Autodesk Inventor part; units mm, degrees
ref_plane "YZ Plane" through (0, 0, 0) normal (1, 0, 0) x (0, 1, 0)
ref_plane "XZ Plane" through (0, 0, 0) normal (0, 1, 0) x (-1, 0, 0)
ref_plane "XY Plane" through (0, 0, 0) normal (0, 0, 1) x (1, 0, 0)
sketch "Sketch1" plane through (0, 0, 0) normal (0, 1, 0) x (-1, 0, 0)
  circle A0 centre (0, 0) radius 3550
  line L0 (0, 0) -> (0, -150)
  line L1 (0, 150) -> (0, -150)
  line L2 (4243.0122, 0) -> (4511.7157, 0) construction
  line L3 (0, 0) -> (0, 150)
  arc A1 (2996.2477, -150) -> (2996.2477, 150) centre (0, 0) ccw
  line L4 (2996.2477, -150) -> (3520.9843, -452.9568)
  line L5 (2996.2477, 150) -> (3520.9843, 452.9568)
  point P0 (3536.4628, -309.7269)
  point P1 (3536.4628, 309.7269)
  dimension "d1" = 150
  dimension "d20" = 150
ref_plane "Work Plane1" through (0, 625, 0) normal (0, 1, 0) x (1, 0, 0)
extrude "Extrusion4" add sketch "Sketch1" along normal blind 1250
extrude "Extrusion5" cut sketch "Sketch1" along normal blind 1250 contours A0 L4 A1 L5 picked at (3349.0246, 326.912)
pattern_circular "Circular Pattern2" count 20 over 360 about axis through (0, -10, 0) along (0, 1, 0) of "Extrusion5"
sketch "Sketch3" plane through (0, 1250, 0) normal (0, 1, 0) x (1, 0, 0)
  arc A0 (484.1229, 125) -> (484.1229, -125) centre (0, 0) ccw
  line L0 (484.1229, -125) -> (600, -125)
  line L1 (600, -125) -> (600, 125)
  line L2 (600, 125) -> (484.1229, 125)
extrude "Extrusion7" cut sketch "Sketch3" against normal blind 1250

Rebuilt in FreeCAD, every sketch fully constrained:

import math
import FreeCAD as App
import Part
import Sketcher

V = App.Vector
Q = App.Units.Quantity

doc = App.newDocument("Part")
params = doc.addObject("Spreadsheet::Sheet", "Params")
for row, (alias, value) in enumerate([
    ("sketch1_diameter", "7100 mm"),
    ("pad1_length", "1250 mm"),
    ("sketch2_radius", "3550 mm"),
    ("sketch2_radius2", "3000 mm"),
    ("pocket1_length", "1250 mm"),
    ("sketch3_radius", "500 mm"),
    ("sketch3_height", "250 mm"),
    ("pocket2_length", "1250 mm"),
], start=1):
    params.set(f"A{row}", alias)
    params.set(f"B{row}", "=" + value)
    params.setAlias(f"B{row}", alias)

body = doc.addObject("PartDesign::Body", "Body")

sketch1 = body.newObject("Sketcher::SketchObject", "Sketch")
sketch1.AttachmentSupport = (doc.getObject("XZ_Plane"), [""])
sketch1.MapMode = "FlatFace"
sketch1.addGeometry(Part.Circle(V(0, 0, 0), V(0, 0, 1), 3550), False)
sketch1.addConstraint([
    Sketcher.Constraint("Coincident", 0, 3, -1, 1),
    Sketcher.Constraint("Diameter", 0, 7100.0),
])
sketch1.setExpression("Constraints[1]", "Params.sketch1_diameter")
pad1 = body.newObject("PartDesign::Pad", "Pad")
pad1.Profile = sketch1
pad1.setExpression("Length", "Params.pad1_length")
pad1.Reversed = True

sketch2 = body.newObject("Sketcher::SketchObject", "Sketch001")
sketch2.AttachmentSupport = (doc.getObject("XZ_Plane"), [""])
sketch2.MapMode = "FlatFace"
sketch2.addGeometry([
    Part.ArcOfCircle(Part.Circle(V(0, 0, 0), V(0, 0, 1), 3550), math.radians(172.67), math.radians(187.33)),
    Part.LineSegment(V(-3521, 453, 0), V(-2996, 150, 0)),
    Part.ArcOfCircle(Part.Circle(V(0, 0, 0), V(0, 0, 1), 3000), math.radians(177.13), math.radians(182.87)),
    Part.LineSegment(V(-2996, -150, 0), V(-3521, -453, 0)),
], False)
sketch2.addConstraint([
    Sketcher.Constraint("Coincident", 0, 1, 1, 1),
    Sketcher.Constraint("Coincident", 1, 2, 2, 1),
    Sketcher.Constraint("Coincident", 2, 2, 3, 1),
    Sketcher.Constraint("Coincident", 3, 2, 0, 2),
    Sketcher.Constraint("Coincident", 0, 3, -1, 1),
    Sketcher.Constraint("Coincident", 2, 3, -1, 1),
    Sketcher.Constraint("Equal", 1, 3),
    Sketcher.Constraint("Angle", 3, Q("-150 deg")),
    Sketcher.Constraint("DistanceY", -1, 1, 1, 2, 150.0),
    Sketcher.Constraint("Radius", 0, 3550.0),
    Sketcher.Constraint("Radius", 2, 3000.0),
    Sketcher.Constraint("Angle", 1, Q("-30 deg")),
])
sketch2.setExpression("Constraints[9]", "Params.sketch2_radius")
sketch2.setExpression("Constraints[10]", "Params.sketch2_radius2")
pocket1 = body.newObject("PartDesign::Pocket", "Pocket")
pocket1.Profile = sketch2
pocket1.setExpression("Length", "Params.pocket1_length")
doc.recompute()

polarpattern = body.newObject("PartDesign::PolarPattern", "PolarPattern")
polarpattern.Originals = [pocket1]
polarpattern.Axis = (doc.getObject("Y_Axis"), [""])
polarpattern.Angle = 360
polarpattern.Occurrences = 20
body.Tip = polarpattern

sketch3 = body.newObject("Sketcher::SketchObject", "Sketch002")
sketch3.AttachmentSupport = (doc.getObject("XZ_Plane"), [""])
sketch3.MapMode = "FlatFace"
sketch3.AttachmentOffset = App.Placement(V(0, 0, -1250), App.Rotation())
sketch3.addGeometry([
    Part.LineSegment(V(600, -125, 0), V(484, -125, 0)),
    Part.ArcOfCircle(Part.Circle(V(0, 0, 0), V(0, 0, 1), 500), math.radians(14), math.radians(346)),
    Part.LineSegment(V(484, 125, 0), V(600, 125, 0)),
    Part.LineSegment(V(600, 125, 0), V(600, -125, 0)),
], False)
sketch3.addConstraint([
    Sketcher.Constraint("Coincident", 0, 2, 1, 2),
    Sketcher.Constraint("Coincident", 1, 1, 2, 1),
    Sketcher.Constraint("Coincident", 2, 2, 3, 1),
    Sketcher.Constraint("Coincident", 3, 2, 0, 1),
    Sketcher.Constraint("Horizontal", 0),
    Sketcher.Constraint("Horizontal", 2),
    Sketcher.Constraint("Vertical", 3),
    Sketcher.Constraint("Coincident", 1, 3, -1, 1),
    Sketcher.Constraint("Equal", 0, 2),
    Sketcher.Constraint("Radius", 1, 500.0),
    Sketcher.Constraint("DistanceY", 3, 2, 3, 1, 250.0),
    Sketcher.Constraint("DistanceX", -1, 1, 2, 2, 600.0),
])
sketch3.setExpression("Constraints[9]", "Params.sketch3_radius")
sketch3.setExpression("Constraints[10]", "Params.sketch3_height")
pocket2 = body.newObject("PartDesign::Pocket", "Pocket001")
pocket2.Profile = sketch3
pocket2.setExpression("Length", "Params.pocket2_length")
pocket2.Reversed = True

doc.recompute()
